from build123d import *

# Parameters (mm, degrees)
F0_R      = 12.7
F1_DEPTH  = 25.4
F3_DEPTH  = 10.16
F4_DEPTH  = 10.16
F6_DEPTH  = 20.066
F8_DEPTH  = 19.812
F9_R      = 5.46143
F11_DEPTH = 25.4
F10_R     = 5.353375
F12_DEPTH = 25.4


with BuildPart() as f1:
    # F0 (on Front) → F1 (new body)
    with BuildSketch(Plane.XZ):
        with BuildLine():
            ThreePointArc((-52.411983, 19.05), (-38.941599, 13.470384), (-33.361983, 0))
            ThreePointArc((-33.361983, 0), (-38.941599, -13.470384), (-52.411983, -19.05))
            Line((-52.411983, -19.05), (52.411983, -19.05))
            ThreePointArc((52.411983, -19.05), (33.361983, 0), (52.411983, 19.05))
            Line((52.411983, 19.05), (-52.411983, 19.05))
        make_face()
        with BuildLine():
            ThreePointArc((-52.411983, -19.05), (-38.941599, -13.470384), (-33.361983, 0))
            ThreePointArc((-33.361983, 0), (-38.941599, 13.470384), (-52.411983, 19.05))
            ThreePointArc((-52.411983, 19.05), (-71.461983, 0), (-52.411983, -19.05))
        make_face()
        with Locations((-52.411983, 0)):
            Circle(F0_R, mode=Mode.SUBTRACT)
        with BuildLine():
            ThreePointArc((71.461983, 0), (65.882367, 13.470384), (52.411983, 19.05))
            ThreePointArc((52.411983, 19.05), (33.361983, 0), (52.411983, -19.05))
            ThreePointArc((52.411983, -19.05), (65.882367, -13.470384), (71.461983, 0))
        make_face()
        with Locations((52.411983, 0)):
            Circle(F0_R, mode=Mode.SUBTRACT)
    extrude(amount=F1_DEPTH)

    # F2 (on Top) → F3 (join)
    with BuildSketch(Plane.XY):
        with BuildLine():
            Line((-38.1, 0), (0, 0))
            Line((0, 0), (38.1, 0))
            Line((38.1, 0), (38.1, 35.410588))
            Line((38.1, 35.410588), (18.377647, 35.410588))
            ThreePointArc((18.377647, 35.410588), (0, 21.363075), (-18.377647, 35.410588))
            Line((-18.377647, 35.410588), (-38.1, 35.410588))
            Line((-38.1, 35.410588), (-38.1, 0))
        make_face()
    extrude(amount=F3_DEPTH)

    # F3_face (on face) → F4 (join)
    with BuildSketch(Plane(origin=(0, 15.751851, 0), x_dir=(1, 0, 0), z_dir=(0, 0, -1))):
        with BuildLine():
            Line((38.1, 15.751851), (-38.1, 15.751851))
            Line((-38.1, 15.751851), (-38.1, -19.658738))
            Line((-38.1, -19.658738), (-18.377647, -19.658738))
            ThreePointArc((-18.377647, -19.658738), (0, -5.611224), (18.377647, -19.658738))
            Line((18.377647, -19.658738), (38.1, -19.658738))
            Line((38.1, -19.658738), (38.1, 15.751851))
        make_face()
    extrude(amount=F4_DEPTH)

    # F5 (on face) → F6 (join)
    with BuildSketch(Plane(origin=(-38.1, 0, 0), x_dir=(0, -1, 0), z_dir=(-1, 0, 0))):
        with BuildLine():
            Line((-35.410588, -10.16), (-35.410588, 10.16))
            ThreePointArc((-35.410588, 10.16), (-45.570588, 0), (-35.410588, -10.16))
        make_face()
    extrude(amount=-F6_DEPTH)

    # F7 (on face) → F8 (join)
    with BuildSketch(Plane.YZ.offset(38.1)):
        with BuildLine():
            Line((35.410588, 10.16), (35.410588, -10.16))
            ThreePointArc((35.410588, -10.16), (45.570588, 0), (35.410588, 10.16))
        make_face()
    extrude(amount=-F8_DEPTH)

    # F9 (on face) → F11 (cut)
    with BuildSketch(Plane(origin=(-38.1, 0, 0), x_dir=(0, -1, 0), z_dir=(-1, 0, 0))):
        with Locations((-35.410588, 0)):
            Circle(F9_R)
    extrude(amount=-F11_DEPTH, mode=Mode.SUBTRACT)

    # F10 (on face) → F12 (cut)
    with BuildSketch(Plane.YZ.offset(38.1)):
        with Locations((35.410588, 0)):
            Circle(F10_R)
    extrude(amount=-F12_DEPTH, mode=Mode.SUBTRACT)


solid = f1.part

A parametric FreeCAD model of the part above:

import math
import FreeCAD as App
import Part
import Sketcher
Q = App.Units.Quantity

doc = App.newDocument("Part")
params = doc.addObject("Spreadsheet::Sheet", "Params")
for row, (alias, value) in enumerate([
    ("sketch1_diameter", "1 in"),
    ("sketch1_radius", "0.75 in"),
    ("pad1_length", "1 in"),
    ("sketch2_width", "3 in"),
    ("pad2_length", "0.4 in"),
    ("sketch3_width", "3 in"),
    ("pad3_length", "0.4 in"),
    ("sketch4_radius", "0.4 in"),
    ("pad4_length", "0.79 in"),
    ("sketch5_radius", "0.4 in"),
    ("pad5_length", "0.78 in"),
    ("pocket1_length", "1 in"),
    ("pocket2_length", "1 in"),
], start=1):
    params.set(f"A{row}", alias)
    params.set(f"B{row}", "=" + value)
    params.setAlias(f"B{row}", alias)

body = doc.addObject("PartDesign::Body", "Body")

sketch1 = body.newObject("Sketcher::SketchObject", "Sketch")
sketch1.AttachmentSupport = (doc.getObject("XZ_Plane"), [""])
sketch1.MapMode = "FlatFace"
sketch1.addGeometry(Part.LineSegment(App.Vector(-52, -19, 0), App.Vector(52, -19, 0)), False)
sketch1.addGeometry(Part.ArcOfCircle(Part.Circle(App.Vector(52, 0, 0), App.Vector(0, 0, 1), 19), math.radians(-90), math.radians(0)), False)
sketch1.addGeometry(Part.ArcOfCircle(Part.Circle(App.Vector(52, 0, 0), App.Vector(0, 0, 1), 19), math.radians(0), math.radians(90)), False)
sketch1.addGeometry(Part.LineSegment(App.Vector(52, 19, 0), App.Vector(-52, 19, 0)), False)
sketch1.addGeometry(Part.ArcOfCircle(Part.Circle(App.Vector(-52, 0, 0), App.Vector(0, 0, 1), 19), math.radians(90), math.radians(270)), False)
sketch1.addGeometry(Part.Circle(App.Vector(-52, 0, 0), App.Vector(0, 0, 1), 13), False)
sketch1.addGeometry(Part.Circle(App.Vector(52, 0, 0), App.Vector(0, 0, 1), 13), False)
sketch1.addConstraint(Sketcher.Constraint("Tangent", 0, 2, 1, 1))
sketch1.addConstraint(Sketcher.Constraint("Tangent", 1, 2, 2, 1))
sketch1.addConstraint(Sketcher.Constraint("Tangent", 2, 2, 3, 1))
sketch1.addConstraint(Sketcher.Constraint("Tangent", 3, 2, 4, 1))
sketch1.addConstraint(Sketcher.Constraint("Tangent", 4, 2, 0, 1))
sketch1.addConstraint(Sketcher.Constraint("Horizontal", 0))
sketch1.addConstraint(Sketcher.Constraint("Horizontal", 3))
sketch1.addConstraint(Sketcher.Constraint("Coincident", 5, 3, 4, 3))
sketch1.addConstraint(Sketcher.Constraint("Coincident", 6, 3, 1, 3))
sketch1.addConstraint(Sketcher.Constraint("Equal", 1, 2))
sketch1.addConstraint(Sketcher.Constraint("Equal", 5, 6))
sketch1.addConstraint(Sketcher.Constraint("Symmetric", 1, 3, 4, 3, -1, 1))
sketch1.addConstraint(Sketcher.Constraint("PointOnObject", 1, 2, -1))
sketch1.addConstraint(Sketcher.Constraint("Diameter", 5, Q("1 in")))
sketch1.addConstraint(Sketcher.Constraint("Radius", 1, Q("0.75 in")))
sketch1.addConstraint(Sketcher.Constraint("DistanceX", 0, 1, 0, 2, Q("104.823966 mm")))
sketch1.setExpression("Constraints[13]", "Params.sketch1_diameter")
sketch1.setExpression("Constraints[14]", "Params.sketch1_radius")
pad1 = body.newObject("PartDesign::Pad", "Pad")
pad1.Profile = sketch1
pad1.setExpression("Length", "Params.pad1_length")

sketch2 = body.newObject("Sketcher::SketchObject", "Sketch001")
sketch2.AttachmentSupport = (doc.getObject("XY_Plane"), [""])
sketch2.MapMode = "FlatFace"
sketch2.addGeometry(Part.LineSegment(App.Vector(-38, 0, 0), App.Vector(38, 0, 0)), False)
sketch2.addGeometry(Part.LineSegment(App.Vector(38, 0, 0), App.Vector(38, 35, 0)), False)
sketch2.addGeometry(Part.LineSegment(App.Vector(38, 35, 0), App.Vector(18, 35, 0)), False)
sketch2.addGeometry(Part.ArcOfCircle(Part.Circle(App.Vector(0, 40, 0), App.Vector(0, 0, 1), 19), math.radians(-165), math.radians(-15)), False)
sketch2.addGeometry(Part.LineSegment(App.Vector(-18, 35, 0), App.Vector(-38, 35, 0)), False)
sketch2.addGeometry(Part.LineSegment(App.Vector(-38, 35, 0), App.Vector(-38, 0, 0)), False)
sketch2.addConstraint(Sketcher.Constraint("Coincident", 0, 2, 1, 1))
sketch2.addConstraint(Sketcher.Constraint("Coincident", 1, 2, 2, 1))
sketch2.addConstraint(Sketcher.Constraint("Coincident", 2, 2, 3, 2))
sketch2.addConstraint(Sketcher.Constraint("Coincident", 3, 1, 4, 1))
sketch2.addConstraint(Sketcher.Constraint("Coincident", 4, 2, 5, 1))
sketch2.addConstraint(Sketcher.Constraint("Coincident", 5, 2, 0, 1))
sketch2.addConstraint(Sketcher.Constraint("Horizontal", 0))
sketch2.addConstraint(Sketcher.Constraint("Vertical", 1))
sketch2.addConstraint(Sketcher.Constraint("Horizontal", 2))
sketch2.addConstraint(Sketcher.Constraint("Horizontal", 4))
sketch2.addConstraint(Sketcher.Constraint("Vertical", 5))
sketch2.addConstraint(Sketcher.Constraint("Symmetric", 0, 2, 5, 2, -1, 1))
sketch2.addConstraint(Sketcher.Constraint("Symmetric", 2, 2, 3, 1, -2))
sketch2.addConstraint(Sketcher.Constraint("DistanceX", 0, 1, 0, 2, Q("3 in")))
sketch2.addConstraint(Sketcher.Constraint("Radius", 3, Q("19.045027 mm")))
sketch2.addConstraint(Sketcher.Constraint("DistanceX", 2, 2, 2, 1, Q("19.722353 mm")))
sketch2.addConstraint(Sketcher.Constraint("DistanceY", 1, 1, 1, 2, Q("35.410588 mm")))
sketch2.setExpression("Constraints[13]", "Params.sketch2_width")
pad2 = body.newObject("PartDesign::Pad", "Pad001")
pad2.Profile = sketch2
pad2.setExpression("Length", "Params.pad2_length")

sketch3 = body.newObject("Sketcher::SketchObject", "Sketch002")
sketch3.AttachmentSupport = (doc.getObject("XY_Plane"), [""])
sketch3.MapMode = "FlatFace"
sketch3.addGeometry(Part.LineSegment(App.Vector(38, 0, 0), App.Vector(-38, 0, 0)), False)
sketch3.addGeometry(Part.LineSegment(App.Vector(-38, 0, 0), App.Vector(-38, 35, 0)), False)
sketch3.addGeometry(Part.LineSegment(App.Vector(-38, 35, 0), App.Vector(-18, 35, 0)), False)
sketch3.addGeometry(Part.ArcOfCircle(Part.Circle(App.Vector(0, 40, 0), App.Vector(0, 0, 1), 19), math.radians(-165), math.radians(-15)), False)
sketch3.addGeometry(Part.LineSegment(App.Vector(18, 35, 0), App.Vector(38, 35, 0)), False)
sketch3.addGeometry(Part.LineSegment(App.Vector(38, 35, 0), App.Vector(38, 0, 0)), False)
sketch3.addConstraint(Sketcher.Constraint("Coincident", 0, 2, 1, 1))
sketch3.addConstraint(Sketcher.Constraint("Coincident", 1, 2, 2, 1))
sketch3.addConstraint(Sketcher.Constraint("Coincident", 2, 2, 3, 1))
sketch3.addConstraint(Sketcher.Constraint("Coincident", 3, 2, 4, 1))
sketch3.addConstraint(Sketcher.Constraint("Coincident", 4, 2, 5, 1))
sketch3.addConstraint(Sketcher.Constraint("Coincident", 5, 2, 0, 1))
sketch3.addConstraint(Sketcher.Constraint("Horizontal", 0))
sketch3.addConstraint(Sketcher.Constraint("Vertical", 1))
sketch3.addConstraint(Sketcher.Constraint("Horizontal", 2))
sketch3.addConstraint(Sketcher.Constraint("Horizontal", 4))
sketch3.addConstraint(Sketcher.Constraint("Vertical", 5))
sketch3.addConstraint(Sketcher.Constraint("Symmetric", 0, 2, 5, 2, -1, 1))
sketch3.addConstraint(Sketcher.Constraint("Symmetric", 2, 2, 3, 2, -2))
sketch3.addConstraint(Sketcher.Constraint("DistanceX", 0, 2, 0, 1, Q("3 in")))
sketch3.addConstraint(Sketcher.Constraint("Radius", 3, Q("19.045027 mm")))
sketch3.addConstraint(Sketcher.Constraint("DistanceY", 1, 1, 1, 2, Q("35.410589 mm")))
sketch3.addConstraint(Sketcher.Constraint("DistanceY", -1, 1, 3, 3, Q("40.408102 mm")))
sketch3.setExpression("Constraints[13]", "Params.sketch3_width")
pad3 = body.newObject("PartDesign::Pad", "Pad002")
pad3.Profile = sketch3
pad3.setExpression("Length", "Params.pad3_length")
pad3.Reversed = True

sketch4 = body.newObject("Sketcher::SketchObject", "Sketch003")
sketch4.AttachmentSupport = (doc.getObject("YZ_Plane"), [""])
sketch4.MapMode = "FlatFace"
sketch4.AttachmentOffset = App.Placement(App.Vector(0, 0, -1.5 * 25.4), App.Rotation())
sketch4.addGeometry(Part.LineSegment(App.Vector(35, -10, 0), App.Vector(35, 10, 0)), False)
sketch4.addGeometry(Part.ArcOfCircle(Part.Circle(App.Vector(35, 0, 0), App.Vector(0, 0, 1), 10), math.radians(-90), math.radians(90)), False)
sketch4.addConstraint(Sketcher.Constraint("Coincident", 0, 1, 1, 1))
sketch4.addConstraint(Sketcher.Constraint("Coincident", 1, 2, 0, 2))
sketch4.addConstraint(Sketcher.Constraint("Vertical", 0))
sketch4.addConstraint(Sketcher.Constraint("PointOnObject", 1, 3, -1))
sketch4.addConstraint(Sketcher.Constraint("Vertical", 1, 3, 0, 1))
sketch4.addConstraint(Sketcher.Constraint("Radius", 1, Q("0.4 in")))
sketch4.addConstraint(Sketcher.Constraint("DistanceX", -1, 1, 1, 3, Q("35.410588 mm")))
sketch4.setExpression("Constraints[5]", "Params.sketch4_radius")
pad4 = body.newObject("PartDesign::Pad", "Pad003")
pad4.Profile = sketch4
pad4.setExpression("Length", "Params.pad4_length")

sketch5 = body.newObject("Sketcher::SketchObject", "Sketch004")
sketch5.AttachmentSupport = (doc.getObject("YZ_Plane"), [""])
sketch5.MapMode = "FlatFace"
sketch5.AttachmentOffset = App.Placement(App.Vector(0, 0, 1.5 * 25.4), App.Rotation())
sketch5.addGeometry(Part.LineSegment(App.Vector(35, 10, 0), App.Vector(35, -10, 0)), False)
sketch5.addGeometry(Part.ArcOfCircle(Part.Circle(App.Vector(35, 0, 0), App.Vector(0, 0, 1), 10), math.radians(-90), math.radians(90)), False)
sketch5.addConstraint(Sketcher.Constraint("Coincident", 0, 1, 1, 2))
sketch5.addConstraint(Sketcher.Constraint("Coincident", 1, 1, 0, 2))
sketch5.addConstraint(Sketcher.Constraint("Vertical", 0))
sketch5.addConstraint(Sketcher.Constraint("PointOnObject", 1, 3, -1))
sketch5.addConstraint(Sketcher.Constraint("Vertical", 1, 3, 0, 1))
sketch5.addConstraint(Sketcher.Constraint("Radius", 1, Q("0.4 in")))
sketch5.addConstraint(Sketcher.Constraint("DistanceX", -1, 1, 1, 3, Q("35.410588 mm")))
sketch5.setExpression("Constraints[5]", "Params.sketch5_radius")
pad5 = body.newObject("PartDesign::Pad", "Pad004")
pad5.Profile = sketch5
pad5.setExpression("Length", "Params.pad5_length")
pad5.Reversed = True

sketch6 = body.newObject("Sketcher::SketchObject", "Sketch005")
sketch6.AttachmentSupport = (doc.getObject("YZ_Plane"), [""])
sketch6.MapMode = "FlatFace"
sketch6.AttachmentOffset = App.Placement(App.Vector(0, 0, -1.5 * 25.4), App.Rotation())
sketch6.addGeometry(Part.Circle(App.Vector(35, 0, 0), App.Vector(0, 0, 1), 5), False)
sketch6.addConstraint(Sketcher.Constraint("PointOnObject", 0, 3, -1))
sketch6.addConstraint(Sketcher.Constraint("Diameter", 0, Q("10.92286 mm")))
sketch6.addConstraint(Sketcher.Constraint("DistanceX", -1, 1, 0, 3, Q("35.410588 mm")))
pocket1 = body.newObject("PartDesign::Pocket", "Pocket")
pocket1.Profile = sketch6
pocket1.setExpression("Length", "Params.pocket1_length")
pocket1.Reversed = True

sketch7 = body.newObject("Sketcher::SketchObject", "Sketch006")
sketch7.AttachmentSupport = (doc.getObject("YZ_Plane"), [""])
sketch7.MapMode = "FlatFace"
sketch7.AttachmentOffset = App.Placement(App.Vector(0, 0, 1.5 * 25.4), App.Rotation())
sketch7.addGeometry(Part.Circle(App.Vector(35, 0, 0), App.Vector(0, 0, 1), 5), False)
sketch7.addConstraint(Sketcher.Constraint("PointOnObject", 0, 3, -1))
sketch7.addConstraint(Sketcher.Constraint("Diameter", 0, Q("10.70675 mm")))
sketch7.addConstraint(Sketcher.Constraint("DistanceX", -1, 1, 0, 3, Q("35.410588 mm")))
pocket2 = body.newObject("PartDesign::Pocket", "Pocket001")
pocket2.Profile = sketch7
pocket2.setExpression("Length", "Params.pocket2_length")

doc.recompute()
